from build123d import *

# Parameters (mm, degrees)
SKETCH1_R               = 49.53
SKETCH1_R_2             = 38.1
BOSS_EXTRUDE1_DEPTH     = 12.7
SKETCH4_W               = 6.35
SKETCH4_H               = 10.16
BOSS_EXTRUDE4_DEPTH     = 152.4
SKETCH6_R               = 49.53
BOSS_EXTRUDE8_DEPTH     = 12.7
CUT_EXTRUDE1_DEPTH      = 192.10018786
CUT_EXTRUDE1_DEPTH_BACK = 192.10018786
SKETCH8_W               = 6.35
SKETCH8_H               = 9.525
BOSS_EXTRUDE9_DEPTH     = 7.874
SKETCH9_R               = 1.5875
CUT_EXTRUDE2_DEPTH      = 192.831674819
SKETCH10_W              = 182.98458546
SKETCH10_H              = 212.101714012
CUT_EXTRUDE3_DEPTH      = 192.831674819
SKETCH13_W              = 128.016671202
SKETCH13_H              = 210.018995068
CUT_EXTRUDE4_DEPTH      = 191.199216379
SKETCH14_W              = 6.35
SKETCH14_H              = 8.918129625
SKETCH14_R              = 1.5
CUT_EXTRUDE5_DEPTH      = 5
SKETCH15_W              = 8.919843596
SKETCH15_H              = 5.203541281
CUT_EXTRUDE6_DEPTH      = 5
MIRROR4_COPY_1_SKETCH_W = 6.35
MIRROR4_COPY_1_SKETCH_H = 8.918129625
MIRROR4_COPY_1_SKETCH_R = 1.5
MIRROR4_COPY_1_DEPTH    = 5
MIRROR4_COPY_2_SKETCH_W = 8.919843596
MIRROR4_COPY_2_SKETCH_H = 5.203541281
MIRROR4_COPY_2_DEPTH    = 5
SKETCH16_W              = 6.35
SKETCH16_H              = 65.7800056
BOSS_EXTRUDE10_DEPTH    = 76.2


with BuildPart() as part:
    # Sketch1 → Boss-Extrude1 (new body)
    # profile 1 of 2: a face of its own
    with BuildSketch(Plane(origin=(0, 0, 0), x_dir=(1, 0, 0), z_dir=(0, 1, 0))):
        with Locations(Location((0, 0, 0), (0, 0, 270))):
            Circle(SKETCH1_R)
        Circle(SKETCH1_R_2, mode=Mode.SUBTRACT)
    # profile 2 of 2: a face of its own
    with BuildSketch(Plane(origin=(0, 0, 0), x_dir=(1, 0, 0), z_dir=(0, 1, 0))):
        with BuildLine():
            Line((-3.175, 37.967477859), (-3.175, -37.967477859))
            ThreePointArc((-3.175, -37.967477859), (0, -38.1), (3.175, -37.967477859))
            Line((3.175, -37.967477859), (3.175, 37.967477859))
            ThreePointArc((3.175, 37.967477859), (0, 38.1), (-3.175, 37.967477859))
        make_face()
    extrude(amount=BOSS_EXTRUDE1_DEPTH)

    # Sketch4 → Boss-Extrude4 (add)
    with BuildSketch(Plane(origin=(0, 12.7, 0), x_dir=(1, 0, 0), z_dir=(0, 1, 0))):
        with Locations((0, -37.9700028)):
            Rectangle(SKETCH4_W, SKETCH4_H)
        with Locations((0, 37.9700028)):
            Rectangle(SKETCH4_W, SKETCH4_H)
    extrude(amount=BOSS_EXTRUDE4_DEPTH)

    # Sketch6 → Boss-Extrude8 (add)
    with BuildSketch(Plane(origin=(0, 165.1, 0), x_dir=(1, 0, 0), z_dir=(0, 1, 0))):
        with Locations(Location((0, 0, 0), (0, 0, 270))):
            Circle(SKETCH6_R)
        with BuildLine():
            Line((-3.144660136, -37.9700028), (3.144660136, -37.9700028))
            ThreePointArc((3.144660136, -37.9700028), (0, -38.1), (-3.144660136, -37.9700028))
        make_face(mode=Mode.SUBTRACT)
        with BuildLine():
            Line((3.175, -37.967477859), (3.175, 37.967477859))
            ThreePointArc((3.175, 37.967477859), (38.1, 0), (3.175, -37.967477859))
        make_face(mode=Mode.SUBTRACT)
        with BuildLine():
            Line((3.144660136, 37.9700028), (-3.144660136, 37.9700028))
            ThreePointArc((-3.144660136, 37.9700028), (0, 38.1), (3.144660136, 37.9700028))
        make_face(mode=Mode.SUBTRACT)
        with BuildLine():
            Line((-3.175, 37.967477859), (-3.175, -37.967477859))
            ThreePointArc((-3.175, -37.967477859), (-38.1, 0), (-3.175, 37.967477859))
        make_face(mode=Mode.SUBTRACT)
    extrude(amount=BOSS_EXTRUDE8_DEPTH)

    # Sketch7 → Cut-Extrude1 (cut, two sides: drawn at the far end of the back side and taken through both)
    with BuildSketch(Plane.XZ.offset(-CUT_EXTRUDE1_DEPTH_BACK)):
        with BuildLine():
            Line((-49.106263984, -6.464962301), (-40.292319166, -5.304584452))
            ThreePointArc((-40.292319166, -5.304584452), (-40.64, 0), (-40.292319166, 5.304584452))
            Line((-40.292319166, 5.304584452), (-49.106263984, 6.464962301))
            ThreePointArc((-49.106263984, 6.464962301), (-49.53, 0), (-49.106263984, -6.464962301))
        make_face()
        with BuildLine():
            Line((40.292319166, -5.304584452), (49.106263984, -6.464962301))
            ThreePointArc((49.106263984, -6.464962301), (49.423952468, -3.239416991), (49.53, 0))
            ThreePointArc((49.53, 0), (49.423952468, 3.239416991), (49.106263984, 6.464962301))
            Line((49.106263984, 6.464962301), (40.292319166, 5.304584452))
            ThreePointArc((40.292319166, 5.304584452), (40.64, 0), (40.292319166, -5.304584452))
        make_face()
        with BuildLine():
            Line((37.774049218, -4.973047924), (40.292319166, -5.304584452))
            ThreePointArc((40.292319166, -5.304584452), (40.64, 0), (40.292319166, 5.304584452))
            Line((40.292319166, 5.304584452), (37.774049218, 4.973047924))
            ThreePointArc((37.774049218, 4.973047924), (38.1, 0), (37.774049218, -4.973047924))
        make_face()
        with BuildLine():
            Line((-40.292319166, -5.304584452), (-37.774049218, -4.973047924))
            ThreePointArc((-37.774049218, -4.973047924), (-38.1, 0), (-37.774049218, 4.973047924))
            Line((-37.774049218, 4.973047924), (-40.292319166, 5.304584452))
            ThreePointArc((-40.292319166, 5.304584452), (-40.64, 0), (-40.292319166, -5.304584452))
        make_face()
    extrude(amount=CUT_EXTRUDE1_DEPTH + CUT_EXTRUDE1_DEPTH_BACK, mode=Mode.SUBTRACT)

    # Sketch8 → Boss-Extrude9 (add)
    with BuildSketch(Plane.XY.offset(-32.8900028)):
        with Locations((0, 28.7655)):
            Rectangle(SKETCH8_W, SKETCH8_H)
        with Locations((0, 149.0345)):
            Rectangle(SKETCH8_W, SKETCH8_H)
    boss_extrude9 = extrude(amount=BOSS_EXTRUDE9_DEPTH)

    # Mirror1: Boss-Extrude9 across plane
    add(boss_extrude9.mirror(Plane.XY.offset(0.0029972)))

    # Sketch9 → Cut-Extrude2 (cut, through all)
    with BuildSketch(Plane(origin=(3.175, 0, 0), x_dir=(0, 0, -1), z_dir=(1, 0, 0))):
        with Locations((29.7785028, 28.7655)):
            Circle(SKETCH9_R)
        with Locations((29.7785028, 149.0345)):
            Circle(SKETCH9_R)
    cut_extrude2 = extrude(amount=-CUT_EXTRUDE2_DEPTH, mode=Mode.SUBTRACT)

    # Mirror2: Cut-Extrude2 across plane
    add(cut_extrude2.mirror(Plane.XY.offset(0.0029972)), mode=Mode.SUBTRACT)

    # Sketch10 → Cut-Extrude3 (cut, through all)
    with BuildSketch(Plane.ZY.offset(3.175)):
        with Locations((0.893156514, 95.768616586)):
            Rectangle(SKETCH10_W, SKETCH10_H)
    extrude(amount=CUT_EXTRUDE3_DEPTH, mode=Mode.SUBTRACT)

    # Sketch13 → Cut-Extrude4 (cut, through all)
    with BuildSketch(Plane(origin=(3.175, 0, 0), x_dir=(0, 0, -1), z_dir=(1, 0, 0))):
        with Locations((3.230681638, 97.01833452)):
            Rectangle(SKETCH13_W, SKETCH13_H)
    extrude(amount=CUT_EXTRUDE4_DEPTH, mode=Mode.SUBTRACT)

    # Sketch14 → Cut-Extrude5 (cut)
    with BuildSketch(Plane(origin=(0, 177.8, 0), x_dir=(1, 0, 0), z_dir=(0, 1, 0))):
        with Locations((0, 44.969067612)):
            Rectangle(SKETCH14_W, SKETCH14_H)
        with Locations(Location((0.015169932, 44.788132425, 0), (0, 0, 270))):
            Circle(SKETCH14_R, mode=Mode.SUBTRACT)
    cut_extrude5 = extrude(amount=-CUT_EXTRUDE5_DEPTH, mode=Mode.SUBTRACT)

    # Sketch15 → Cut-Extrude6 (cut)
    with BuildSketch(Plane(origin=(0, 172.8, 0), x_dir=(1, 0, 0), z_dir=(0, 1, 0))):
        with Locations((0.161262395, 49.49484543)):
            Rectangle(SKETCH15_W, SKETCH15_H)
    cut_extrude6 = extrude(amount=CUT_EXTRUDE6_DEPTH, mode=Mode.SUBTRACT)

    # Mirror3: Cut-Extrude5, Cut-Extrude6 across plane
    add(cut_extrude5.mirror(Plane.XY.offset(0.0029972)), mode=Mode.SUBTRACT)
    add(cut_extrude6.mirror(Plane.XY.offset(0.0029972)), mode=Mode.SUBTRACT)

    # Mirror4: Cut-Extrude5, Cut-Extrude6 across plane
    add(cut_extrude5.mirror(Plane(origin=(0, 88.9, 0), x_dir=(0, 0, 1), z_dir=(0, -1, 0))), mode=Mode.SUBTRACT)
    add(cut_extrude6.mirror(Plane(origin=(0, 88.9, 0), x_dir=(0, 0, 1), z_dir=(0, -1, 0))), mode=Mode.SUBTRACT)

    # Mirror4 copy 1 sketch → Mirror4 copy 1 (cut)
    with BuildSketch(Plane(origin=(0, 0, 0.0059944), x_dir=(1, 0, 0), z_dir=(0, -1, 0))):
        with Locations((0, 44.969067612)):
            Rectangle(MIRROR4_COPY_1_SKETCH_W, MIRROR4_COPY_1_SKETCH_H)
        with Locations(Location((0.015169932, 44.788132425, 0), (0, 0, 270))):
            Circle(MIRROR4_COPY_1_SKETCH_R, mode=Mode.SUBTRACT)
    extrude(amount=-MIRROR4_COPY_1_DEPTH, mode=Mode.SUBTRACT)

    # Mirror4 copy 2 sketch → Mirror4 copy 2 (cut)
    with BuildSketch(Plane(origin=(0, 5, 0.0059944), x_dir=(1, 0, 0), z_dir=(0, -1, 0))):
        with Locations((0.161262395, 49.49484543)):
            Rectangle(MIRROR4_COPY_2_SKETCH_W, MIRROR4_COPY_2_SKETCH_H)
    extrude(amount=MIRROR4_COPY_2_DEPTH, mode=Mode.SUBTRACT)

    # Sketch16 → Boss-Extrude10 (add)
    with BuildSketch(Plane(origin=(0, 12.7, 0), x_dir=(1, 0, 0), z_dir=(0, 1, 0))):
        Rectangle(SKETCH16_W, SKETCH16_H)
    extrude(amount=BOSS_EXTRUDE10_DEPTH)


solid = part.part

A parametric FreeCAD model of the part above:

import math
import FreeCAD as App
import Part
import Sketcher
Q = App.Units.Quantity

doc = App.newDocument("Part")
body = doc.addObject("PartDesign::Body", "Body")

# Sketch on XZ plane
sketch1 = doc.addObject("Sketcher::SketchObject", "Sketch")
body.addObject(sketch1)
sketch1.AttachmentSupport = (doc.XZ_Plane, [""])
sketch1.MapMode = "FlatFace"
sketch1.addGeometry(Part.Circle(App.Vector(0, 0, 0), App.Vector(0, 0, 1), 50), False)
sketch1.addGeometry(Part.ArcOfCircle(Part.Circle(App.Vector(0, 0, 0), App.Vector(0, 0, 1), 38), math.radians(-85), math.radians(85)), False)
sketch1.addGeometry(Part.LineSegment(App.Vector(3, 38, 0), App.Vector(3, -38, 0)), False)
sketch1.addGeometry(Part.ArcOfCircle(Part.Circle(App.Vector(0, 0, 0), App.Vector(0, 0, 1), 38), math.radians(95), math.radians(265)), False)
sketch1.addGeometry(Part.LineSegment(App.Vector(-3, -38, 0), App.Vector(-3, 38, 0)), False)
sketch1.addConstraint(Sketcher.Constraint("Coincident", 1, 1, 2, 2))
sketch1.addConstraint(Sketcher.Constraint("Coincident", 2, 1, 1, 2))
sketch1.addConstraint(Sketcher.Constraint("Coincident", 3, 1, 4, 2))
sketch1.addConstraint(Sketcher.Constraint("Coincident", 4, 1, 3, 2))
sketch1.addConstraint(Sketcher.Constraint("Vertical", 2))
sketch1.addConstraint(Sketcher.Constraint("Vertical", 4))
sketch1.addConstraint(Sketcher.Constraint("Coincident", 0, 3, -1, 1))
sketch1.addConstraint(Sketcher.Constraint("Coincident", 1, 3, -1, 1))
sketch1.addConstraint(Sketcher.Constraint("Coincident", 3, 3, -1, 1))
sketch1.addConstraint(Sketcher.Constraint("Equal", 1, 3))
sketch1.addConstraint(Sketcher.Constraint("Horizontal", 2, 1, 3, 1))
sketch1.addConstraint(Sketcher.Constraint("Diameter", 0, Q("3.9 in")))
sketch1.addConstraint(Sketcher.Constraint("Radius", 1, Q("1.5 in")))
sketch1.addConstraint(Sketcher.Constraint("DistanceX", 3, 1, 2, 1, Q("0.25 in")))
pad1 = doc.addObject("PartDesign::Pad", "Pad")
body.addObject(pad1)
pad1.Profile = sketch1
pad1.Length = Q("0.5 in")
pad1.Reversed = True

# Sketch on XZ plane
sketch2 = doc.addObject("Sketcher::SketchObject", "Sketch001")
body.addObject(sketch2)
sketch2.AttachmentSupport = (doc.XZ_Plane, [""])
sketch2.MapMode = "FlatFace"
sketch2.AttachmentOffset = App.Placement(App.Vector(0, 0, -0.5 * 25.4), App.Rotation())
sketch2.addGeometry(Part.LineSegment(App.Vector(-3, 33, 0), App.Vector(-3, 43, 0)), False)
sketch2.addGeometry(Part.LineSegment(App.Vector(-3, 43, 0), App.Vector(3, 43, 0)), False)
sketch2.addGeometry(Part.LineSegment(App.Vector(3, 43, 0), App.Vector(3, 33, 0)), False)
sketch2.addGeometry(Part.LineSegment(App.Vector(3, 33, 0), App.Vector(-3, 33, 0)), False)
sketch2.addGeometry(Part.LineSegment(App.Vector(-3, -43, 0), App.Vector(-3, -33, 0)), False)
sketch2.addGeometry(Part.LineSegment(App.Vector(-3, -33, 0), App.Vector(3, -33, 0)), False)
sketch2.addGeometry(Part.LineSegment(App.Vector(3, -33, 0), App.Vector(3, -43, 0)), False)
sketch2.addGeometry(Part.LineSegment(App.Vector(3, -43, 0), App.Vector(-3, -43, 0)), False)
sketch2.addConstraint(Sketcher.Constraint("Coincident", 0, 2, 1, 1))
sketch2.addConstraint(Sketcher.Constraint("Coincident", 1, 2, 2, 1))
sketch2.addConstraint(Sketcher.Constraint("Coincident", 2, 2, 3, 1))
sketch2.addConstraint(Sketcher.Constraint("Coincident", 3, 2, 0, 1))
sketch2.addConstraint(Sketcher.Constraint("Coincident", 4, 2, 5, 1))
sketch2.addConstraint(Sketcher.Constraint("Coincident", 5, 2, 6, 1))
sketch2.addConstraint(Sketcher.Constraint("Coincident", 6, 2, 7, 1))
sketch2.addConstraint(Sketcher.Constraint("Coincident", 7, 2, 4, 1))
sketch2.addConstraint(Sketcher.Constraint("Vertical", 0))
sketch2.addConstraint(Sketcher.Constraint("Horizontal", 1))
sketch2.addConstraint(Sketcher.Constraint("Vertical", 2))
sketch2.addConstraint(Sketcher.Constraint("Horizontal", 3))
sketch2.addConstraint(Sketcher.Constraint("Vertical", 4))
sketch2.addConstraint(Sketcher.Constraint("Horizontal", 5))
sketch2.addConstraint(Sketcher.Constraint("Vertical", 6))
sketch2.addConstraint(Sketcher.Constraint("Horizontal", 7))
sketch2.addConstraint(Sketcher.Constraint("Symmetric", 2, 2, 4, 2, -1, 1))
sketch2.addConstraint(Sketcher.Constraint("Symmetric", 0, 2, 6, 2, -1, 1))
sketch2.addConstraint(Sketcher.Constraint("Vertical", 3, 2, 4, 2))
sketch2.addConstraint(Sketcher.Constraint("DistanceY", 0, 1, 0, 2, Q("0.4 in")))
sketch2.addConstraint(Sketcher.Constraint("DistanceX", 1, 1, 1, 2, Q("0.25 in")))
sketch2.addConstraint(Sketcher.Constraint("DistanceY", -1, 1, 0, 2, 43.050003))
pad2 = doc.addObject("PartDesign::Pad", "Pad001")
body.addObject(pad2)
pad2.Profile = sketch2
pad2.Length = Q("6 in")
pad2.Reversed = True

# Sketch on XZ plane
sketch3 = doc.addObject("Sketcher::SketchObject", "Sketch002")
body.addObject(sketch3)
sketch3.AttachmentSupport = (doc.XZ_Plane, [""])
sketch3.MapMode = "FlatFace"
sketch3.AttachmentOffset = App.Placement(App.Vector(0, 0, -6.5 * 25.4), App.Rotation())
sketch3.addGeometry(Part.Circle(App.Vector(0, 0, 0), App.Vector(0, 0, 1), 50), False)
sketch3.addGeometry(Part.ArcOfCircle(Part.Circle(App.Vector(0, 0, 0), App.Vector(0, 0, 1), 38), math.radians(-94.73), math.radians(-85.27)), False)
sketch3.addGeometry(Part.LineSegment(App.Vector(3, -38, 0), App.Vector(-3, -38, 0)), False)
sketch3.addGeometry(Part.ArcOfCircle(Part.Circle(App.Vector(0, 0, 0), App.Vector(0, 0, 1), 38), math.radians(95), math.radians(265)), False)
sketch3.addGeometry(Part.LineSegment(App.Vector(-3, -38, 0), App.Vector(-3, 38, 0)), False)
sketch3.addGeometry(Part.ArcOfCircle(Part.Circle(App.Vector(0, 0, 0), App.Vector(0, 0, 1), 38), math.radians(85.27), math.radians(94.73)), False)
sketch3.addGeometry(Part.LineSegment(App.Vector(-3, 38, 0), App.Vector(3, 38, 0)), False)
sketch3.addGeometry(Part.ArcOfCircle(Part.Circle(App.Vector(0, 0, 0), App.Vector(0, 0, 1), 38), math.radians(-85), math.radians(85)), False)
sketch3.addGeometry(Part.LineSegment(App.Vector(3, 38, 0), App.Vector(3, -38, 0)), False)
sketch3.addConstraint(Sketcher.Constraint("Coincident", 1, 1, 2, 2))
sketch3.addConstraint(Sketcher.Constraint("Coincident", 2, 1, 1, 2))
sketch3.addConstraint(Sketcher.Constraint("Coincident", 3, 1, 4, 2))
sketch3.addConstraint(Sketcher.Constraint("Coincident", 4, 1, 3, 2))
sketch3.addConstraint(Sketcher.Constraint("Coincident", 5, 1, 6, 2))
sketch3.addConstraint(Sketcher.Constraint("Coincident", 6, 1, 5, 2))
sketch3.addConstraint(Sketcher.Constraint("Coincident", 7, 1, 8, 2))
sketch3.addConstraint(Sketcher.Constraint("Coincident", 8, 1, 7, 2))
sketch3.addConstraint(Sketcher.Constraint("Horizontal", 2))
sketch3.addConstraint(Sketcher.Constraint("Vertical", 4))
sketch3.addConstraint(Sketcher.Constraint("Horizontal", 6))
sketch3.addConstraint(Sketcher.Constraint("Vertical", 8))
sketch3.addConstraint(Sketcher.Constraint("Coincident", 0, 3, -1, 1))
sketch3.addConstraint(Sketcher.Constraint("Coincident", 1, 3, -1, 1))
sketch3.addConstraint(Sketcher.Constraint("Coincident", 3, 3, -1, 1))
sketch3.addConstraint(Sketcher.Constraint("Coincident", 5, 3, -1, 1))
sketch3.addConstraint(Sketcher.Constraint("Coincident", 7, 3, -1, 1))
sketch3.addConstraint(Sketcher.Constraint("Equal", 1, 3))
sketch3.addConstraint(Sketcher.Constraint("Equal", 3, 5))
sketch3.addConstraint(Sketcher.Constraint("Equal", 5, 7))
sketch3.addConstraint(Sketcher.Constraint("Horizontal", 4, 1, 7, 1))
sketch3.addConstraint(Sketcher.Constraint("Vertical", 2, 1, 5, 1))
sketch3.addConstraint(Sketcher.Constraint("Diameter", 0, Q("3.9 in")))
sketch3.addConstraint(Sketcher.Constraint("Radius", 1, Q("1.5 in")))
sketch3.addConstraint(Sketcher.Constraint("DistanceX", 4, 1, 7, 1, Q("0.25 in")))
sketch3.addConstraint(Sketcher.Constraint("DistanceX", 2, 2, 2, 1, 6.28932))
pad3 = doc.addObject("PartDesign::Pad", "Pad002")
body.addObject(pad3)
pad3.Profile = sketch3
pad3.Length = Q("0.5 in")
pad3.Reversed = True

# Sketch on XZ plane
sketch4 = doc.addObject("Sketcher::SketchObject", "Sketch003")
body.addObject(sketch4)
sketch4.AttachmentSupport = (doc.XZ_Plane, [""])
sketch4.MapMode = "FlatFace"
sketch4.addGeometry(Part.LineSegment(App.Vector(-49.1, -6.5, 0), App.Vector(-40.3, -5.3, 0)), False)
sketch4.addGeometry(Part.LineSegment(App.Vector(-40.3, -5.3, 0), App.Vector(-37.8, -5, 0)), False)
sketch4.addGeometry(Part.ArcOfCircle(Part.Circle(App.Vector(0, 0, 0), App.Vector(0, 0, 1), 38.1), math.radians(172.5), math.radians(187.5)), False)
sketch4.addGeometry(Part.LineSegment(App.Vector(-37.8, 5, 0), App.Vector(-40.3, 5.3, 0)), False)
sketch4.addGeometry(Part.LineSegment(App.Vector(-40.3, 5.3, 0), App.Vector(-49.1, 6.5, 0)), False)
sketch4.addGeometry(Part.ArcOfCircle(Part.Circle(App.Vector(0, 0, 0), App.Vector(0, 0, 1), 49.5), math.radians(172.5), math.radians(187.5)), False)
sketch4.addGeometry(Part.LineSegment(App.Vector(40.3, -5.3, 0), App.Vector(49.1, -6.5, 0)), False)
sketch4.addGeometry(Part.ArcOfCircle(Part.Circle(App.Vector(0, 0, 0), App.Vector(0, 0, 1), 49.5), math.radians(-7.5), math.radians(0)), False)
sketch4.addGeometry(Part.ArcOfCircle(Part.Circle(App.Vector(0, 0, 0), App.Vector(0, 0, 1), 49.5), math.radians(0), math.radians(7.5)), False)
sketch4.addGeometry(Part.LineSegment(App.Vector(49.1, 6.5, 0), App.Vector(40.3, 5.3, 0)), False)
sketch4.addGeometry(Part.LineSegment(App.Vector(40.3, 5.3, 0), App.Vector(37.8, 5, 0)), False)
sketch4.addGeometry(Part.ArcOfCircle(Part.Circle(App.Vector(0, 0, 0), App.Vector(0, 0, 1), 38.1), math.radians(-7.5), math.radians(7.5)), False)
sketch4.addGeometry(Part.LineSegment(App.Vector(37.8, -5, 0), App.Vector(40.3, -5.3, 0)), False)
sketch4.addConstraint(Sketcher.Constraint("Coincident", 0, 2, 1, 1))
sketch4.addConstraint(Sketcher.Constraint("Coincident", 1, 2, 2, 2))
sketch4.addConstraint(Sketcher.Constraint("Coincident", 2, 1, 3, 1))
sketch4.addConstraint(Sketcher.Constraint("Coincident", 3, 2, 4, 1))
sketch4.addConstraint(Sketcher.Constraint("Coincident", 4, 2, 5, 1))
sketch4.addConstraint(Sketcher.Constraint("Coincident", 5, 2, 0, 1))
sketch4.addConstraint(Sketcher.Constraint("Coincident", 6, 2, 7, 1))
sketch4.addConstraint(Sketcher.Constraint("Tangent", 7, 2, 8, 1))
sketch4.addConstraint(Sketcher.Constraint("Coincident", 8, 2, 9, 1))
sketch4.addConstraint(Sketcher.Constraint("Coincident", 9, 2, 10, 1))
sketch4.addConstraint(Sketcher.Constraint("Coincident", 10, 2, 11, 2))
sketch4.addConstraint(Sketcher.Constraint("Coincident", 11, 1, 12, 1))
sketch4.addConstraint(Sketcher.Constraint("Coincident", 12, 2, 6, 1))
sketch4.addConstraint(Sketcher.Constraint("Coincident", 2, 3, -1, 1))
sketch4.addConstraint(Sketcher.Constraint("Coincident", 5, 3, -1, 1))
sketch4.addConstraint(Sketcher.Constraint("Coincident", 7, 3, -1, 1))
sketch4.addConstraint(Sketcher.Constraint("Coincident", 11, 3, -1, 1))
sketch4.addConstraint(Sketcher.Constraint("Equal", 5, 7))
sketch4.addConstraint(Sketcher.Constraint("Equal", 7, 8))
sketch4.addConstraint(Sketcher.Constraint("Equal", 2, 11))
sketch4.addConstraint(Sketcher.Constraint("Symmetric", 0, 2, 9, 2, -1, 1))
sketch4.addConstraint(Sketcher.Constraint("Symmetric", 3, 2, 12, 2, -1, 1))
sketch4.addConstraint(Sketcher.Constraint("Symmetric", 3, 2, 9, 2, -2))
sketch4.addConstraint(Sketcher.Constraint("PointOnObject", 7, 2, -1))
sketch4.addConstraint(Sketcher.Constraint("Parallel", 0, 1))
sketch4.addConstraint(Sketcher.Constraint("Parallel", 3, 4))
sketch4.addConstraint(Sketcher.Constraint("Parallel", 4, 6))
sketch4.addConstraint(Sketcher.Constraint("Parallel", 1, 9))
sketch4.addConstraint(Sketcher.Constraint("Parallel", 9, 10))
sketch4.addConstraint(Sketcher.Constraint("Parallel", 6, 12))
sketch4.addConstraint(Sketcher.Constraint("Horizontal", 5, 2, 6, 2))
sketch4.addConstraint(Sketcher.Constraint("Radius", 2, Q("1.5 in")))
sketch4.addConstraint(Sketcher.Constraint("Radius", 5, Q("1.95 in")))
sketch4.addConstraint(Sketcher.Constraint("Distance", 1, Q("0.1 in")))
sketch4.addConstraint(Sketcher.Constraint("Angle", 0, Q("7.5 deg")))
sketch4.addConstraint(Sketcher.Constraint("DistanceX", 0, 2, -1, 1, 40.292319))
pocket1 = doc.addObject("PartDesign::Pocket", "Pocket")
body.addObject(pocket1)
pocket1.Profile = sketch4
pocket1.Type = "ThroughAll"
pocket1.Midplane = True

# Sketch on XY plane
sketch5 = doc.addObject("Sketcher::SketchObject", "Sketch004")
body.addObject(sketch5)
sketch5.AttachmentSupport = (doc.XY_Plane, [""])
sketch5.MapMode = "FlatFace"
sketch5.AttachmentOffset = App.Placement(App.Vector(0, 0, -32.890003), App.Rotation())
sketch5.addGeometry(Part.LineSegment(App.Vector(-3, 34, 0), App.Vector(-3, 24, 0)), False)
sketch5.addGeometry(Part.LineSegment(App.Vector(-3, 24, 0), App.Vector(3, 24, 0)), False)
sketch5.addGeometry(Part.LineSegment(App.Vector(3, 24, 0), App.Vector(3, 34, 0)), False)
sketch5.addGeometry(Part.LineSegment(App.Vector(3, 34, 0), App.Vector(-3, 34, 0)), False)
sketch5.addGeometry(Part.LineSegment(App.Vector(-3, 154, 0), App.Vector(-3, 144, 0)), False)
sketch5.addGeometry(Part.LineSegment(App.Vector(-3, 144, 0), App.Vector(3, 144, 0)), False)
sketch5.addGeometry(Part.LineSegment(App.Vector(3, 144, 0), App.Vector(3, 154, 0)), False)
sketch5.addGeometry(Part.LineSegment(App.Vector(3, 154, 0), App.Vector(-3, 154, 0)), False)
sketch5.addConstraint(Sketcher.Constraint("Coincident", 0, 2, 1, 1))
sketch5.addConstraint(Sketcher.Constraint("Coincident", 1, 2, 2, 1))
sketch5.addConstraint(Sketcher.Constraint("Coincident", 2, 2, 3, 1))
sketch5.addConstraint(Sketcher.Constraint("Coincident", 3, 2, 0, 1))
sketch5.addConstraint(Sketcher.Constraint("Coincident", 4, 2, 5, 1))
sketch5.addConstraint(Sketcher.Constraint("Coincident", 5, 2, 6, 1))
sketch5.addConstraint(Sketcher.Constraint("Coincident", 6, 2, 7, 1))
sketch5.addConstraint(Sketcher.Constraint("Coincident", 7, 2, 4, 1))
sketch5.addConstraint(Sketcher.Constraint("Vertical", 0))
sketch5.addConstraint(Sketcher.Constraint("Horizontal", 1))
sketch5.addConstraint(Sketcher.Constraint("Vertical", 2))
sketch5.addConstraint(Sketcher.Constraint("Horizontal", 3))
sketch5.addConstraint(Sketcher.Constraint("Vertical", 4))
sketch5.addConstraint(Sketcher.Constraint("Horizontal", 5))
sketch5.addConstraint(Sketcher.Constraint("Vertical", 6))
sketch5.addConstraint(Sketcher.Constraint("Horizontal", 7))
sketch5.addConstraint(Sketcher.Constraint("Vertical", 3, 2, 4, 2))
sketch5.addConstraint(Sketcher.Constraint("Vertical", 2, 2, 5, 2))
sketch5.addConstraint(Sketcher.Constraint("Equal", 2, 4))
sketch5.addConstraint(Sketcher.Constraint("DistanceX", 1, 1, 1, 2, Q("0.25 in")))
sketch5.addConstraint(Sketcher.Constraint("DistanceY", 0, 2, 0, 1, Q("0.375 in")))
sketch5.addConstraint(Sketcher.Constraint("DistanceY", -1, 1, 2, 2, Q("1.32 in")))
sketch5.addConstraint(Sketcher.Constraint("DistanceY", -1, 1, 4, 2, Q("5.68 in")))
sketch5.addConstraint(Sketcher.Constraint("DistanceX", 0, 2, -1, 1, Q("0.125 in")))
pad4 = doc.addObject("PartDesign::Pad", "Pad003")
body.addObject(pad4)
pad4.Profile = sketch5
pad4.Length = Q("0.31 in")
doc.recompute()

datumplane = doc.addObject("PartDesign::Plane", "DatumPlane")
body.addObject(datumplane)
datumplane.AttachmentSupport = (doc.XY_Plane, [""])
datumplane.MapMode = "FlatFace"
datumplane.AttachmentOffset = App.Placement(App.Vector(0, 0, 0.002997), App.Rotation())
mirrored = doc.addObject("PartDesign::Mirrored", "Mirrored")
body.addObject(mirrored)
mirrored.Originals = [pad4]
mirrored.MirrorPlane = (datumplane, [""])
body.Tip = mirrored

# Sketch on YZ plane
sketch6 = doc.addObject("Sketcher::SketchObject", "Sketch005")
body.addObject(sketch6)
sketch6.AttachmentSupport = (doc.YZ_Plane, [""])
sketch6.MapMode = "FlatFace"
sketch6.AttachmentOffset = App.Placement(App.Vector(0, 0, 0.125 * 25.4), App.Rotation())
sketch6.addGeometry(Part.Circle(App.Vector(28.8, -29.8, 0), App.Vector(0, 0, 1), 1.6), False)
sketch6.addGeometry(Part.Circle(App.Vector(149, -29.8, 0), App.Vector(0, 0, 1), 1.6), False)
sketch6.addConstraint(Sketcher.Constraint("Equal", 0, 1))
sketch6.addConstraint(Sketcher.Constraint("Horizontal", 0, 3, 1, 3))
sketch6.addConstraint(Sketcher.Constraint("Diameter", 0, Q("0.125 in")))
sketch6.addConstraint(Sketcher.Constraint("DistanceX", 0, 3, 1, 3, Q("4.735 in")))
sketch6.addConstraint(Sketcher.Constraint("DistanceX", -1, 1, 0, 3, Q("1.1325 in")))
sketch6.addConstraint(Sketcher.Constraint("DistanceY", 0, 3, -1, 1, 29.778503))
pocket2 = doc.addObject("PartDesign::Pocket", "Pocket001")
body.addObject(pocket2)
pocket2.Profile = sketch6
pocket2.Type = "ThroughAll"
doc.recompute()

datumplane2 = doc.addObject("PartDesign::Plane", "DatumPlane001")
body.addObject(datumplane2)
datumplane2.AttachmentSupport = (doc.XY_Plane, [""])
datumplane2.MapMode = "FlatFace"
datumplane2.AttachmentOffset = App.Placement(App.Vector(0, 0, 0.002997), App.Rotation())
mirrored2 = doc.addObject("PartDesign::Mirrored", "Mirrored001")
body.addObject(mirrored2)
mirrored2.Originals = [pocket2]
mirrored2.MirrorPlane = (datumplane2, [""])
body.Tip = mirrored2

# Sketch on YZ plane
sketch7 = doc.addObject("Sketcher::SketchObject", "Sketch006")
body.addObject(sketch7)
sketch7.AttachmentSupport = (doc.YZ_Plane, [""])
sketch7.MapMode = "FlatFace"
sketch7.AttachmentOffset = App.Placement(App.Vector(0, 0, -0.125 * 25.4), App.Rotation())
sketch7.addGeometry(Part.LineSegment(App.Vector(202, -91, 0), App.Vector(-10, -91, 0)), False)
sketch7.addGeometry(Part.LineSegment(App.Vector(-10, -91, 0), App.Vector(-10, 92, 0)), False)
sketch7.addGeometry(Part.LineSegment(App.Vector(-10, 92, 0), App.Vector(202, 92, 0)), False)
sketch7.addGeometry(Part.LineSegment(App.Vector(202, 92, 0), App.Vector(202, -91, 0)), False)
sketch7.addConstraint(Sketcher.Constraint("Coincident", 0, 2, 1, 1))
sketch7.addConstraint(Sketcher.Constraint("Coincident", 1, 2, 2, 1))
sketch7.addConstraint(Sketcher.Constraint("Coincident", 2, 2, 3, 1))
sketch7.addConstraint(Sketcher.Constraint("Coincident", 3, 2, 0, 1))
sketch7.addConstraint(Sketcher.Constraint("Horizontal", 0))
sketch7.addConstraint(Sketcher.Constraint("Vertical", 1))
sketch7.addConstraint(Sketcher.Constraint("Horizontal", 2))
sketch7.addConstraint(Sketcher.Constraint("Vertical", 3))
sketch7.addConstraint(Sketcher.Constraint("DistanceX", 0, 2, 0, 1, 212.101714))
sketch7.addConstraint(Sketcher.Constraint("DistanceY", 1, 1, 1, 2, 182.984585))
sketch7.addConstraint(Sketcher.Constraint("DistanceX", 0, 2, -1, 1, 10.28224))
sketch7.addConstraint(Sketcher.Constraint("DistanceY", -1, 1, 1, 2, 92.385449))
pocket3 = doc.addObject("PartDesign::Pocket", "Pocket002")
body.addObject(pocket3)
pocket3.Profile = sketch7
pocket3.Type = "ThroughAll"

# Sketch on YZ plane
sketch8 = doc.addObject("Sketcher::SketchObject", "Sketch007")
body.addObject(sketch8)
sketch8.AttachmentSupport = (doc.YZ_Plane, [""])
sketch8.MapMode = "FlatFace"
sketch8.AttachmentOffset = App.Placement(App.Vector(0, 0, 0.125 * 25.4), App.Rotation())
sketch8.addGeometry(Part.LineSegment(App.Vector(202, 61, 0), App.Vector(-8, 61, 0)), False)
sketch8.addGeometry(Part.LineSegment(App.Vector(-8, 61, 0), App.Vector(-8, -67, 0)), False)
sketch8.addGeometry(Part.LineSegment(App.Vector(-8, -67, 0), App.Vector(202, -67, 0)), False)
sketch8.addGeometry(Part.LineSegment(App.Vector(202, -67, 0), App.Vector(202, 61, 0)), False)
sketch8.addConstraint(Sketcher.Constraint("Coincident", 0, 2, 1, 1))
sketch8.addConstraint(Sketcher.Constraint("Coincident", 1, 2, 2, 1))
sketch8.addConstraint(Sketcher.Constraint("Coincident", 2, 2, 3, 1))
sketch8.addConstraint(Sketcher.Constraint("Coincident", 3, 2, 0, 1))
sketch8.addConstraint(Sketcher.Constraint("Horizontal", 0))
sketch8.addConstraint(Sketcher.Constraint("Vertical", 1))
sketch8.addConstraint(Sketcher.Constraint("Horizontal", 2))
sketch8.addConstraint(Sketcher.Constraint("Vertical", 3))
sketch8.addConstraint(Sketcher.Constraint("DistanceY", 1, 2, 1, 1, 128.016671))
sketch8.addConstraint(Sketcher.Constraint("DistanceX", 0, 2, 0, 1, 210.018995))
sketch8.addConstraint(Sketcher.Constraint("DistanceX", 0, 2, -1, 1, 7.991163))
sketch8.addConstraint(Sketcher.Constraint("DistanceY", -1, 1, 0, 2, 60.777654))
pocket4 = doc.addObject("PartDesign::Pocket", "Pocket003")
body.addObject(pocket4)
pocket4.Profile = sketch8
pocket4.Type = "ThroughAll"
pocket4.Reversed = True

# Sketch on XZ plane
sketch9 = doc.addObject("Sketcher::SketchObject", "Sketch008")
body.addObject(sketch9)
sketch9.AttachmentSupport = (doc.XZ_Plane, [""])
sketch9.MapMode = "FlatFace"
sketch9.AttachmentOffset = App.Placement(App.Vector(0, 0, -7 * 25.4), App.Rotation())
sketch9.addGeometry(Part.LineSegment(App.Vector(-3.2, -49.4, 0), App.Vector(-3.2, -40.5, 0)), False)
sketch9.addGeometry(Part.LineSegment(App.Vector(-3.2, -40.5, 0), App.Vector(3.2, -40.5, 0)), False)
sketch9.addGeometry(Part.LineSegment(App.Vector(3.2, -40.5, 0), App.Vector(3.2, -49.4, 0)), False)
sketch9.addGeometry(Part.LineSegment(App.Vector(3.2, -49.4, 0), App.Vector(-3.2, -49.4, 0)), False)
sketch9.addGeometry(Part.Circle(App.Vector(0, -44.8, 0), App.Vector(0, 0, 1), 1.5), False)
sketch9.addConstraint(Sketcher.Constraint("Coincident", 0, 2, 1, 1))
sketch9.addConstraint(Sketcher.Constraint("Coincident", 1, 2, 2, 1))
sketch9.addConstraint(Sketcher.Constraint("Coincident", 2, 2, 3, 1))
sketch9.addConstraint(Sketcher.Constraint("Coincident", 3, 2, 0, 1))
sketch9.addConstraint(Sketcher.Constraint("Vertical", 0))
sketch9.addConstraint(Sketcher.Constraint("Horizontal", 1))
sketch9.addConstraint(Sketcher.Constraint("Vertical", 2))
sketch9.addConstraint(Sketcher.Constraint("Horizontal", 3))
sketch9.addConstraint(Sketcher.Constraint("DistanceX", 1, 1, 1, 2, Q("0.25 in")))
sketch9.addConstraint(Sketcher.Constraint("Diameter", 4, 3.0))
sketch9.addConstraint(Sketcher.Constraint("DistanceX", 0, 2, -1, 1, Q("0.125 in")))
sketch9.addConstraint(Sketcher.Constraint("DistanceY", 0, 1, 0, 2, 8.91813))
sketch9.addConstraint(Sketcher.Constraint("DistanceY", 2, 2, 4, 3, 4.64))
sketch9.addConstraint(Sketcher.Constraint("DistanceX", -1, 1, 4, 3, 0.01517))
sketch9.addConstraint(Sketcher.Constraint("DistanceY", 4, 3, -1, 1, 44.788132))
pocket5 = doc.addObject("PartDesign::Pocket", "Pocket004")
body.addObject(pocket5)
pocket5.Profile = sketch9
pocket5.Length = 5
pocket5.Reversed = True

# Sketch on XZ plane
sketch10 = doc.addObject("Sketcher::SketchObject", "Sketch009")
body.addObject(sketch10)
sketch10.AttachmentSupport = (doc.XZ_Plane, [""])
sketch10.MapMode = "FlatFace"
sketch10.AttachmentOffset = App.Placement(App.Vector(0, 0, -172.8), App.Rotation())
sketch10.addGeometry(Part.LineSegment(App.Vector(-4, -52, 0), App.Vector(-4, -47, 0)), False)
sketch10.addGeometry(Part.LineSegment(App.Vector(-4, -47, 0), App.Vector(5, -47, 0)), False)
sketch10.addGeometry(Part.LineSegment(App.Vector(5, -47, 0), App.Vector(5, -52, 0)), False)
sketch10.addGeometry(Part.LineSegment(App.Vector(5, -52, 0), App.Vector(-4, -52, 0)), False)
sketch10.addConstraint(Sketcher.Constraint("Coincident", 0, 2, 1, 1))
sketch10.addConstraint(Sketcher.Constraint("Coincident", 1, 2, 2, 1))
sketch10.addConstraint(Sketcher.Constraint("Coincident", 2, 2, 3, 1))
sketch10.addConstraint(Sketcher.Constraint("Coincident", 3, 2, 0, 1))
sketch10.addConstraint(Sketcher.Constraint("Vertical", 0))
sketch10.addConstraint(Sketcher.Constraint("Horizontal", 1))
sketch10.addConstraint(Sketcher.Constraint("Vertical", 2))
sketch10.addConstraint(Sketcher.Constraint("Horizontal", 3))
sketch10.addConstraint(Sketcher.Constraint("DistanceY", 0, 1, 0, 2, 5.203541))
sketch10.addConstraint(Sketcher.Constraint("DistanceX", 1, 1, 1, 2, 8.919844))
sketch10.addConstraint(Sketcher.Constraint("DistanceX", 0, 2, -1, 1, 4.298659))
sketch10.addConstraint(Sketcher.Constraint("DistanceY", 0, 2, -1, 1, 46.893075))
pocket6 = doc.addObject("PartDesign::Pocket", "Pocket005")
body.addObject(pocket6)
pocket6.Profile = sketch10
pocket6.Length = 5
doc.recompute()

datumplane3 = doc.addObject("PartDesign::Plane", "DatumPlane002")
body.addObject(datumplane3)
datumplane3.AttachmentSupport = (doc.XY_Plane, [""])
datumplane3.MapMode = "FlatFace"
datumplane3.AttachmentOffset = App.Placement(App.Vector(0, 0, 0.002997), App.Rotation())
mirrored3 = doc.addObject("PartDesign::Mirrored", "Mirrored002")
body.addObject(mirrored3)
mirrored3.Originals = [pocket5, pocket6]
mirrored3.MirrorPlane = (datumplane3, [""])
body.Tip = mirrored3
doc.recompute()

datumplane4 = doc.addObject("PartDesign::Plane", "DatumPlane003")
body.addObject(datumplane4)
datumplane4.AttachmentSupport = (doc.XZ_Plane, [""])
datumplane4.MapMode = "FlatFace"
datumplane4.AttachmentOffset = App.Placement(App.Vector(0, 0, -3.5 * 25.4), App.Rotation())
mirrored4 = doc.addObject("PartDesign::Mirrored", "Mirrored003")
body.addObject(mirrored4)
mirrored4.Originals = [pocket5, pocket6]
mirrored4.MirrorPlane = (datumplane4, [""])
body.Tip = mirrored4

# Sketch on XZ plane
sketch11 = doc.addObject("Sketcher::SketchObject", "Sketch010")
body.addObject(sketch11)
sketch11.AttachmentSupport = (doc.XZ_Plane, [""])
sketch11.MapMode = "FlatFace"
sketch11.addGeometry(Part.LineSegment(App.Vector(-3.2, 49.4, 0), App.Vector(-3.2, 40.5, 0)), False)
sketch11.addGeometry(Part.LineSegment(App.Vector(-3.2, 40.5, 0), App.Vector(3.2, 40.5, 0)), False)
sketch11.addGeometry(Part.LineSegment(App.Vector(3.2, 40.5, 0), App.Vector(3.2, 49.4, 0)), False)
sketch11.addGeometry(Part.LineSegment(App.Vector(3.2, 49.4, 0), App.Vector(-3.2, 49.4, 0)), False)
sketch11.addGeometry(Part.Circle(App.Vector(0, 44.8, 0), App.Vector(0, 0, 1), 1.5), False)
sketch11.addConstraint(Sketcher.Constraint("Coincident", 0, 2, 1, 1))
sketch11.addConstraint(Sketcher.Constraint("Coincident", 1, 2, 2, 1))
sketch11.addConstraint(Sketcher.Constraint("Coincident", 2, 2, 3, 1))
sketch11.addConstraint(Sketcher.Constraint("Coincident", 3, 2, 0, 1))
sketch11.addConstraint(Sketcher.Constraint("Vertical", 0))
sketch11.addConstraint(Sketcher.Constraint("Horizontal", 1))
sketch11.addConstraint(Sketcher.Constraint("Vertical", 2))
sketch11.addConstraint(Sketcher.Constraint("Horizontal", 3))
sketch11.addConstraint(Sketcher.Constraint("DistanceX", 1, 1, 1, 2, Q("0.25 in")))
sketch11.addConstraint(Sketcher.Constraint("Diameter", 4, 3.0))
sketch11.addConstraint(Sketcher.Constraint("DistanceX", 0, 2, -1, 1, Q("0.125 in")))
sketch11.addConstraint(Sketcher.Constraint("DistanceY", 0, 2, 0, 1, 8.91813))
sketch11.addConstraint(Sketcher.Constraint("DistanceY", 4, 3, 2, 2, 4.64))
sketch11.addConstraint(Sketcher.Constraint("DistanceX", -1, 1, 4, 3, 0.01517))
sketch11.addConstraint(Sketcher.Constraint("DistanceY", -1, 1, 4, 3, 44.794127))
pocket7 = doc.addObject("PartDesign::Pocket", "Pocket006")
body.addObject(pocket7)
pocket7.Profile = sketch11
pocket7.Length = 5

# Sketch on XZ plane
sketch12 = doc.addObject("Sketcher::SketchObject", "Sketch011")
body.addObject(sketch12)
sketch12.AttachmentSupport = (doc.XZ_Plane, [""])
sketch12.MapMode = "FlatFace"
sketch12.AttachmentOffset = App.Placement(App.Vector(0, 0, -5), App.Rotation())
sketch12.addGeometry(Part.LineSegment(App.Vector(-4, 52, 0), App.Vector(-4, 47, 0)), False)
sketch12.addGeometry(Part.LineSegment(App.Vector(-4, 47, 0), App.Vector(5, 47, 0)), False)
sketch12.addGeometry(Part.LineSegment(App.Vector(5, 47, 0), App.Vector(5, 52, 0)), False)
sketch12.addGeometry(Part.LineSegment(App.Vector(5, 52, 0), App.Vector(-4, 52, 0)), False)
sketch12.addConstraint(Sketcher.Constraint("Coincident", 0, 2, 1, 1))
sketch12.addConstraint(Sketcher.Constraint("Coincident", 1, 2, 2, 1))
sketch12.addConstraint(Sketcher.Constraint("Coincident", 2, 2, 3, 1))
sketch12.addConstraint(Sketcher.Constraint("Coincident", 3, 2, 0, 1))
sketch12.addConstraint(Sketcher.Constraint("Vertical", 0))
sketch12.addConstraint(Sketcher.Constraint("Horizontal", 1))
sketch12.addConstraint(Sketcher.Constraint("Vertical", 2))
sketch12.addConstraint(Sketcher.Constraint("Horizontal", 3))
sketch12.addConstraint(Sketcher.Constraint("DistanceY", 0, 2, 0, 1, 5.203541))
sketch12.addConstraint(Sketcher.Constraint("DistanceX", 1, 1, 1, 2, 8.919844))
sketch12.addConstraint(Sketcher.Constraint("DistanceX", 0, 2, -1, 1, 4.298659))
sketch12.addConstraint(Sketcher.Constraint("DistanceY", -1, 1, 0, 2, 46.899069))
pocket8 = doc.addObject("PartDesign::Pocket", "Pocket007")
body.addObject(pocket8)
pocket8.Profile = sketch12
pocket8.Length = 5
pocket8.Reversed = True

# Sketch on XZ plane
sketch13 = doc.addObject("Sketcher::SketchObject", "Sketch012")
body.addObject(sketch13)
sketch13.AttachmentSupport = (doc.XZ_Plane, [""])
sketch13.MapMode = "FlatFace"
sketch13.AttachmentOffset = App.Placement(App.Vector(0, 0, -0.5 * 25.4), App.Rotation())
sketch13.addGeometry(Part.LineSegment(App.Vector(-3, -33, 0), App.Vector(-3, 33, 0)), False)
sketch13.addGeometry(Part.LineSegment(App.Vector(-3, 33, 0), App.Vector(3, 33, 0)), False)
sketch13.addGeometry(Part.LineSegment(App.Vector(3, 33, 0), App.Vector(3, -33, 0)), False)
sketch13.addGeometry(Part.LineSegment(App.Vector(3, -33, 0), App.Vector(-3, -33, 0)), False)
sketch13.addConstraint(Sketcher.Constraint("Coincident", 0, 2, 1, 1))
sketch13.addConstraint(Sketcher.Constraint("Coincident", 1, 2, 2, 1))
sketch13.addConstraint(Sketcher.Constraint("Coincident", 2, 2, 3, 1))
sketch13.addConstraint(Sketcher.Constraint("Coincident", 3, 2, 0, 1))
sketch13.addConstraint(Sketcher.Constraint("Vertical", 0))
sketch13.addConstraint(Sketcher.Constraint("Horizontal", 1))
sketch13.addConstraint(Sketcher.Constraint("Vertical", 2))
sketch13.addConstraint(Sketcher.Constraint("Horizontal", 3))
sketch13.addConstraint(Sketcher.Constraint("Symmetric", 0, 2, 2, 2, -1, 1))
sketch13.addConstraint(Sketcher.Constraint("DistanceX", 1, 1, 1, 2, Q("0.25 in")))
sketch13.addConstraint(Sketcher.Constraint("DistanceY", 0, 1, 0, 2, 65.780006))
pad5 = doc.addObject("PartDesign::Pad", "Pad004")
body.addObject(pad5)
pad5.Profile = sketch13
pad5.Length = Q("3 in")
pad5.Reversed = True

doc.recompute()
